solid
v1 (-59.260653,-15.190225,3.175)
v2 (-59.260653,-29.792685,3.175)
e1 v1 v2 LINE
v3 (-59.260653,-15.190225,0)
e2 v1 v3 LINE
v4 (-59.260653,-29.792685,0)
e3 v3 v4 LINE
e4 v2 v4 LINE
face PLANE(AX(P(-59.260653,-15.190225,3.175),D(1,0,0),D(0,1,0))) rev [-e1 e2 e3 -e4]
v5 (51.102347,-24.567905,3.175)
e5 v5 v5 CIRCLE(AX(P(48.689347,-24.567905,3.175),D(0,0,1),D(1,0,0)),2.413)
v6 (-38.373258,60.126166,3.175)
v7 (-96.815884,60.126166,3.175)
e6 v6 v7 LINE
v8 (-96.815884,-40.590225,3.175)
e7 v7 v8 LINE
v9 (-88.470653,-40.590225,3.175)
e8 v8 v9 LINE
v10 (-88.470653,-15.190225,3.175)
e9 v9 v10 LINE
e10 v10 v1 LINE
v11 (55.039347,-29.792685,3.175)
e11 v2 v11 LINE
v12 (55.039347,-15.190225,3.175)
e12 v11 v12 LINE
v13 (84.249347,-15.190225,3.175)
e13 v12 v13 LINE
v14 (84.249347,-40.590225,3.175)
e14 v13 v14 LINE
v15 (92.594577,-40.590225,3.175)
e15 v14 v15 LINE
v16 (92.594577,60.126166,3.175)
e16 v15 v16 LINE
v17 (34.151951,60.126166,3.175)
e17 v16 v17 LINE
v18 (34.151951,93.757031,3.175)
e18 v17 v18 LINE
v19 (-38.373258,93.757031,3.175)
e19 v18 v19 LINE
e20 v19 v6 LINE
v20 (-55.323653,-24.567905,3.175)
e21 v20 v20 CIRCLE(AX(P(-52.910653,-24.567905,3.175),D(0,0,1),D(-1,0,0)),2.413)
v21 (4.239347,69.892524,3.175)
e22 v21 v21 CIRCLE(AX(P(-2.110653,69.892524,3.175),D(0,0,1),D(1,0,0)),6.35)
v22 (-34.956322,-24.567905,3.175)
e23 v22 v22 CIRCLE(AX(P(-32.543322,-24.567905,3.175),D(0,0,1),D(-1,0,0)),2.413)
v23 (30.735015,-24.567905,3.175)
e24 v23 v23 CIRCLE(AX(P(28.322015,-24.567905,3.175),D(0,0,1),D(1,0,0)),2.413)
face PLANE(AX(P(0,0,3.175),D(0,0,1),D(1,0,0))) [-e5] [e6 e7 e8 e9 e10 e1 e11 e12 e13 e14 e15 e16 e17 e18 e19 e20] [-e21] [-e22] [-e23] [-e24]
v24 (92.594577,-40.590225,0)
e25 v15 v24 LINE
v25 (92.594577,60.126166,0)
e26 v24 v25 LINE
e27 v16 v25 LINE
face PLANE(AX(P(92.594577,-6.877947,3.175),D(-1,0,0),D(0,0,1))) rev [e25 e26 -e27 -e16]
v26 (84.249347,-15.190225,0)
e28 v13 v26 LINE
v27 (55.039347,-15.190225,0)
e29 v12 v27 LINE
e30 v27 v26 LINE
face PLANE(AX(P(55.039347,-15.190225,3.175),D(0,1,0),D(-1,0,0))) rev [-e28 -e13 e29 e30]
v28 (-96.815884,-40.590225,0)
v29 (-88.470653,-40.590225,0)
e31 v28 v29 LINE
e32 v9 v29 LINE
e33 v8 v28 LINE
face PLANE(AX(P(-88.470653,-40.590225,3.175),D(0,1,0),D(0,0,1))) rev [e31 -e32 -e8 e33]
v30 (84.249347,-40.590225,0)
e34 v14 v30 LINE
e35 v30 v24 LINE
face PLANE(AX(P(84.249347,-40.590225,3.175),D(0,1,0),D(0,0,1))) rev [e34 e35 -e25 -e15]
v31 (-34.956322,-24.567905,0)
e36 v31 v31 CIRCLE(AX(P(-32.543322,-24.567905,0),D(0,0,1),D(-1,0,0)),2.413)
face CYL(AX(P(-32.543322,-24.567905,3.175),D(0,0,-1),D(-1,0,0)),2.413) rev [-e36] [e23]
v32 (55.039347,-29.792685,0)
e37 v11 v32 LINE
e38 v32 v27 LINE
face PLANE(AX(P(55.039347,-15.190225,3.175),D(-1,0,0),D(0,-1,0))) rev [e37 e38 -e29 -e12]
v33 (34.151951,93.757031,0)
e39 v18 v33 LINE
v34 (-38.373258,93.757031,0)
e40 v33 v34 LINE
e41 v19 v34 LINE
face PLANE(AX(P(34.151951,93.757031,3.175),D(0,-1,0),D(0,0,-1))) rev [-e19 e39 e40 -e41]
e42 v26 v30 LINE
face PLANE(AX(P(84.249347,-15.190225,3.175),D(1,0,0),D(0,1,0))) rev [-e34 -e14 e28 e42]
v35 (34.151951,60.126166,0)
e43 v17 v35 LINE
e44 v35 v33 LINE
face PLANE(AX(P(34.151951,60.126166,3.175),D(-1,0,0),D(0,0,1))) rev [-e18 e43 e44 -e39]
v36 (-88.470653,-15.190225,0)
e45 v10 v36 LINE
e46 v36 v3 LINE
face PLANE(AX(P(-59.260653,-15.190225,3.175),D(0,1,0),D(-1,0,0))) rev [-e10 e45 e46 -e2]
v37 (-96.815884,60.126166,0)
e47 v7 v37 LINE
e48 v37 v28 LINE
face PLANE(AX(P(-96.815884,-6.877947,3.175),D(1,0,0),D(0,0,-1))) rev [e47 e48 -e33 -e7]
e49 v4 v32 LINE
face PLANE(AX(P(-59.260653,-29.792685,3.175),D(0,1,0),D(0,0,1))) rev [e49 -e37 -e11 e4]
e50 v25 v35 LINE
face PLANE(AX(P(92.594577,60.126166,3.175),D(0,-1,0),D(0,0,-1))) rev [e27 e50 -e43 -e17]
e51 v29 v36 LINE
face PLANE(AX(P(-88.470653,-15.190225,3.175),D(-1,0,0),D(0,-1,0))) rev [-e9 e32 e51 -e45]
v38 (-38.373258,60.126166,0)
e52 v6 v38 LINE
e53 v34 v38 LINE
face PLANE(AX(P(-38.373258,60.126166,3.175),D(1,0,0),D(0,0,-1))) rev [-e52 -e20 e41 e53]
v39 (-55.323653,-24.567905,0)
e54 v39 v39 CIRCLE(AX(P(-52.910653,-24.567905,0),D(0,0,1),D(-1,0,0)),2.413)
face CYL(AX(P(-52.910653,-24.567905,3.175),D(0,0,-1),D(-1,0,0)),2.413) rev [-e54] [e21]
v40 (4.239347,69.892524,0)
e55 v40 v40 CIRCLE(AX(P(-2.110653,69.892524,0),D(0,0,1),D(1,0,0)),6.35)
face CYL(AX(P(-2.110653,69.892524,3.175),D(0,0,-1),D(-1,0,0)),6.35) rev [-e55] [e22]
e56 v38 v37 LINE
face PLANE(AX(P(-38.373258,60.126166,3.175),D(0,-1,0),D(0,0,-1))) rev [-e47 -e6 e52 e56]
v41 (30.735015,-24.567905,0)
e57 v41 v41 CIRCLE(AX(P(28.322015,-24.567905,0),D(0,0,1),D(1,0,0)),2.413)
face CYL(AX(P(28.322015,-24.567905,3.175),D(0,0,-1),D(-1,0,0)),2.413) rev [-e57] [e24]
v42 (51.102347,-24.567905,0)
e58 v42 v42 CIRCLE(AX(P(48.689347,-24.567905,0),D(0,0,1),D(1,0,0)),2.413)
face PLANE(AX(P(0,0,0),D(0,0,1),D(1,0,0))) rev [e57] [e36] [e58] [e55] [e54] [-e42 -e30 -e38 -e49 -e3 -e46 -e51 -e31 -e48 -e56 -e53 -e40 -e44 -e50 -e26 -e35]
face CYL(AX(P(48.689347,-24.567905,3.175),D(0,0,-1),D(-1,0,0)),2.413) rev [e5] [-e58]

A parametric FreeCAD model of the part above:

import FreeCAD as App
import Part
import Sketcher
from FreeCAD import Vector
Q = App.Units.Quantity

doc = App.newDocument("Part")
body = doc.addObject("PartDesign::Body", "Body")

sketch1 = body.newObject("Sketcher::SketchObject", "Sketch")
sketch1.AttachmentSupport = (doc.getObject("XY_Plane"), [""])
sketch1.MapMode = "FlatFace"
sketch1.addGeometry(Part.LineSegment(Vector(92.6, 60.1, 0), Vector(34.2, 60.1, 0)), False)
sketch1.addGeometry(Part.LineSegment(Vector(34.2, 60.1, 0), Vector(34.2, 93.8, 0)), False)
sketch1.addGeometry(Part.LineSegment(Vector(34.2, 93.8, 0), Vector(-38.4, 93.8, 0)), False)
sketch1.addGeometry(Part.LineSegment(Vector(-38.4, 93.8, 0), Vector(-38.4, 60.1, 0)), False)
sketch1.addGeometry(Part.LineSegment(Vector(-38.4, 60.1, 0), Vector(-96.8, 60.1, 0)), False)
sketch1.addGeometry(Part.LineSegment(Vector(-96.8, 60.1, 0), Vector(-96.8, -40.6, 0)), False)
sketch1.addGeometry(Part.LineSegment(Vector(-96.8, -40.6, 0), Vector(-88.5, -40.6, 0)), False)
sketch1.addGeometry(Part.LineSegment(Vector(-88.5, -40.6, 0), Vector(-88.5, -15.2, 0)), False)
sketch1.addGeometry(Part.LineSegment(Vector(-88.5, -15.2, 0), Vector(-59.3, -15.2, 0)), False)
sketch1.addGeometry(Part.LineSegment(Vector(-59.3, -15.2, 0), Vector(-59.3, -29.8, 0)), False)
sketch1.addGeometry(Part.LineSegment(Vector(-59.3, -29.8, 0), Vector(55, -29.8, 0)), False)
sketch1.addGeometry(Part.LineSegment(Vector(55, -29.8, 0), Vector(55, -15.2, 0)), False)
sketch1.addGeometry(Part.LineSegment(Vector(55, -15.2, 0), Vector(84.2, -15.2, 0)), False)
sketch1.addGeometry(Part.LineSegment(Vector(84.2, -15.2, 0), Vector(84.2, -40.6, 0)), False)
sketch1.addGeometry(Part.LineSegment(Vector(84.2, -40.6, 0), Vector(92.6, -40.6, 0)), False)
sketch1.addGeometry(Part.LineSegment(Vector(92.6, -40.6, 0), Vector(92.6, 60.1, 0)), False)
sketch1.addGeometry(Part.Circle(Vector(-52.9, -24.6, 0), Vector(0, 0, 1), 2.4), False)
sketch1.addGeometry(Part.Circle(Vector(-32.5, -24.6, 0), Vector(0, 0, 1), 2.4), False)
sketch1.addGeometry(Part.Circle(Vector(28.3, -24.6, 0), Vector(0, 0, 1), 2.4), False)
sketch1.addGeometry(Part.Circle(Vector(48.7, -24.6, 0), Vector(0, 0, 1), 2.4), False)
sketch1.addGeometry(Part.Circle(Vector(-2.1, 69.9, 0), Vector(0, 0, 1), 6.3), False)
sketch1.addConstraint(Sketcher.Constraint("Coincident", 0, 2, 1, 1))
sketch1.addConstraint(Sketcher.Constraint("Coincident", 1, 2, 2, 1))
sketch1.addConstraint(Sketcher.Constraint("Coincident", 2, 2, 3, 1))
sketch1.addConstraint(Sketcher.Constraint("Coincident", 3, 2, 4, 1))
sketch1.addConstraint(Sketcher.Constraint("Coincident", 4, 2, 5, 1))
sketch1.addConstraint(Sketcher.Constraint("Coincident", 5, 2, 6, 1))
sketch1.addConstraint(Sketcher.Constraint("Coincident", 6, 2, 7, 1))
sketch1.addConstraint(Sketcher.Constraint("Coincident", 7, 2, 8, 1))
sketch1.addConstraint(Sketcher.Constraint("Coincident", 8, 2, 9, 1))
sketch1.addConstraint(Sketcher.Constraint("Coincident", 9, 2, 10, 1))
sketch1.addConstraint(Sketcher.Constraint("Coincident", 10, 2, 11, 1))
sketch1.addConstraint(Sketcher.Constraint("Coincident", 11, 2, 12, 1))
sketch1.addConstraint(Sketcher.Constraint("Coincident", 12, 2, 13, 1))
sketch1.addConstraint(Sketcher.Constraint("Coincident", 13, 2, 14, 1))
sketch1.addConstraint(Sketcher.Constraint("Coincident", 14, 2, 15, 1))
sketch1.addConstraint(Sketcher.Constraint("Coincident", 15, 2, 0, 1))
sketch1.addConstraint(Sketcher.Constraint("Horizontal", 0))
sketch1.addConstraint(Sketcher.Constraint("Vertical", 1))
sketch1.addConstraint(Sketcher.Constraint("Horizontal", 2))
sketch1.addConstraint(Sketcher.Constraint("Vertical", 3))
sketch1.addConstraint(Sketcher.Constraint("Horizontal", 4))
sketch1.addConstraint(Sketcher.Constraint("Vertical", 5))
sketch1.addConstraint(Sketcher.Constraint("Horizontal", 6))
sketch1.addConstraint(Sketcher.Constraint("Vertical", 7))
sketch1.addConstraint(Sketcher.Constraint("Horizontal", 8))
sketch1.addConstraint(Sketcher.Constraint("Vertical", 9))
sketch1.addConstraint(Sketcher.Constraint("Horizontal", 10))
sketch1.addConstraint(Sketcher.Constraint("Vertical", 11))
sketch1.addConstraint(Sketcher.Constraint("Horizontal", 12))
sketch1.addConstraint(Sketcher.Constraint("Vertical", 13))
sketch1.addConstraint(Sketcher.Constraint("Horizontal", 14))
sketch1.addConstraint(Sketcher.Constraint("Vertical", 15))
sketch1.addConstraint(Sketcher.Constraint("Equal", 16, 17))
sketch1.addConstraint(Sketcher.Constraint("Equal", 17, 18))
sketch1.addConstraint(Sketcher.Constraint("Equal", 18, 19))
sketch1.addConstraint(Sketcher.Constraint("Horizontal", 16, 3, 17, 3))
sketch1.addConstraint(Sketcher.Constraint("Horizontal", 17, 3, 18, 3))
sketch1.addConstraint(Sketcher.Constraint("Horizontal", 18, 3, 19, 3))
sketch1.addConstraint(Sketcher.Constraint("Horizontal", 0, 2, 3, 2))
sketch1.addConstraint(Sketcher.Constraint("Horizontal", 8, 2, 11, 2))
sketch1.addConstraint(Sketcher.Constraint("Horizontal", 6, 2, 13, 2))
sketch1.addConstraint(Sketcher.Constraint("Equal", 0, 4))
sketch1.addConstraint(Sketcher.Constraint("Equal", 8, 12))
sketch1.addConstraint(Sketcher.Constraint("Equal", 6, 14))
sketch1.addConstraint(Sketcher.Constraint("Diameter", 20, Q("0.5 in")))
sketch1.addConstraint(Sketcher.Constraint("Diameter", 16, Q("0.19 in")))
sketch1.addConstraint(Sketcher.Constraint("DistanceY", 7, 1, 7, 2, Q("1 in")))
sketch1.addConstraint(Sketcher.Constraint("DistanceX", 10, 1, 10, 2, Q("4.5 in")))
sketch1.addConstraint(Sketcher.Constraint("DistanceX", 16, 3, 19, 3, Q("4 in")))
sketch1.addConstraint(Sketcher.Constraint("DistanceX", 16, 3, 20, 3, Q("2 in")))
sketch1.addConstraint(Sketcher.Constraint("DistanceX", 8, 1, 8, 2, Q("1.15 in")))
sketch1.addConstraint(Sketcher.Constraint("DistanceX", 6, 2, 16, 3, Q("1.4 in")))
sketch1.addConstraint(Sketcher.Constraint("DistanceY", 9, 2, 9, 1, Q("0.5749 in")))
sketch1.addConstraint(Sketcher.Constraint("DistanceY", 5, 2, 16, 3, Q("0.6308 in")))
sketch1.addConstraint(Sketcher.Constraint("DistanceX", 2, 2, 2, 1, 72.525208))
sketch1.addConstraint(Sketcher.Constraint("DistanceX", 6, 1, 6, 2, 8.34523))
sketch1.addConstraint(Sketcher.Constraint("DistanceY", 5, 2, 5, 1, 100.71639))
sketch1.addConstraint(Sketcher.Constraint("DistanceX", 5, 2, 18, 3, 125.137899))
sketch1.addConstraint(Sketcher.Constraint("DistanceY", 1, 1, 1, 2, 33.630865))
sketch1.addConstraint(Sketcher.Constraint("DistanceX", 17, 3, -1, 1, 32.543322))
sketch1.addConstraint(Sketcher.Constraint("DistanceX", -1, 1, 0, 2, 34.151951))
sketch1.addConstraint(Sketcher.Constraint("DistanceY", -1, 1, 1, 2, 93.757031))
sketch1.addConstraint(Sketcher.Constraint("DistanceY", 17, 3, 20, 3, 94.460429))
pad1 = body.newObject("PartDesign::Pad", "Pad")
pad1.Profile = sketch1
pad1.Length = Q("0.125 in")

doc.recompute()
